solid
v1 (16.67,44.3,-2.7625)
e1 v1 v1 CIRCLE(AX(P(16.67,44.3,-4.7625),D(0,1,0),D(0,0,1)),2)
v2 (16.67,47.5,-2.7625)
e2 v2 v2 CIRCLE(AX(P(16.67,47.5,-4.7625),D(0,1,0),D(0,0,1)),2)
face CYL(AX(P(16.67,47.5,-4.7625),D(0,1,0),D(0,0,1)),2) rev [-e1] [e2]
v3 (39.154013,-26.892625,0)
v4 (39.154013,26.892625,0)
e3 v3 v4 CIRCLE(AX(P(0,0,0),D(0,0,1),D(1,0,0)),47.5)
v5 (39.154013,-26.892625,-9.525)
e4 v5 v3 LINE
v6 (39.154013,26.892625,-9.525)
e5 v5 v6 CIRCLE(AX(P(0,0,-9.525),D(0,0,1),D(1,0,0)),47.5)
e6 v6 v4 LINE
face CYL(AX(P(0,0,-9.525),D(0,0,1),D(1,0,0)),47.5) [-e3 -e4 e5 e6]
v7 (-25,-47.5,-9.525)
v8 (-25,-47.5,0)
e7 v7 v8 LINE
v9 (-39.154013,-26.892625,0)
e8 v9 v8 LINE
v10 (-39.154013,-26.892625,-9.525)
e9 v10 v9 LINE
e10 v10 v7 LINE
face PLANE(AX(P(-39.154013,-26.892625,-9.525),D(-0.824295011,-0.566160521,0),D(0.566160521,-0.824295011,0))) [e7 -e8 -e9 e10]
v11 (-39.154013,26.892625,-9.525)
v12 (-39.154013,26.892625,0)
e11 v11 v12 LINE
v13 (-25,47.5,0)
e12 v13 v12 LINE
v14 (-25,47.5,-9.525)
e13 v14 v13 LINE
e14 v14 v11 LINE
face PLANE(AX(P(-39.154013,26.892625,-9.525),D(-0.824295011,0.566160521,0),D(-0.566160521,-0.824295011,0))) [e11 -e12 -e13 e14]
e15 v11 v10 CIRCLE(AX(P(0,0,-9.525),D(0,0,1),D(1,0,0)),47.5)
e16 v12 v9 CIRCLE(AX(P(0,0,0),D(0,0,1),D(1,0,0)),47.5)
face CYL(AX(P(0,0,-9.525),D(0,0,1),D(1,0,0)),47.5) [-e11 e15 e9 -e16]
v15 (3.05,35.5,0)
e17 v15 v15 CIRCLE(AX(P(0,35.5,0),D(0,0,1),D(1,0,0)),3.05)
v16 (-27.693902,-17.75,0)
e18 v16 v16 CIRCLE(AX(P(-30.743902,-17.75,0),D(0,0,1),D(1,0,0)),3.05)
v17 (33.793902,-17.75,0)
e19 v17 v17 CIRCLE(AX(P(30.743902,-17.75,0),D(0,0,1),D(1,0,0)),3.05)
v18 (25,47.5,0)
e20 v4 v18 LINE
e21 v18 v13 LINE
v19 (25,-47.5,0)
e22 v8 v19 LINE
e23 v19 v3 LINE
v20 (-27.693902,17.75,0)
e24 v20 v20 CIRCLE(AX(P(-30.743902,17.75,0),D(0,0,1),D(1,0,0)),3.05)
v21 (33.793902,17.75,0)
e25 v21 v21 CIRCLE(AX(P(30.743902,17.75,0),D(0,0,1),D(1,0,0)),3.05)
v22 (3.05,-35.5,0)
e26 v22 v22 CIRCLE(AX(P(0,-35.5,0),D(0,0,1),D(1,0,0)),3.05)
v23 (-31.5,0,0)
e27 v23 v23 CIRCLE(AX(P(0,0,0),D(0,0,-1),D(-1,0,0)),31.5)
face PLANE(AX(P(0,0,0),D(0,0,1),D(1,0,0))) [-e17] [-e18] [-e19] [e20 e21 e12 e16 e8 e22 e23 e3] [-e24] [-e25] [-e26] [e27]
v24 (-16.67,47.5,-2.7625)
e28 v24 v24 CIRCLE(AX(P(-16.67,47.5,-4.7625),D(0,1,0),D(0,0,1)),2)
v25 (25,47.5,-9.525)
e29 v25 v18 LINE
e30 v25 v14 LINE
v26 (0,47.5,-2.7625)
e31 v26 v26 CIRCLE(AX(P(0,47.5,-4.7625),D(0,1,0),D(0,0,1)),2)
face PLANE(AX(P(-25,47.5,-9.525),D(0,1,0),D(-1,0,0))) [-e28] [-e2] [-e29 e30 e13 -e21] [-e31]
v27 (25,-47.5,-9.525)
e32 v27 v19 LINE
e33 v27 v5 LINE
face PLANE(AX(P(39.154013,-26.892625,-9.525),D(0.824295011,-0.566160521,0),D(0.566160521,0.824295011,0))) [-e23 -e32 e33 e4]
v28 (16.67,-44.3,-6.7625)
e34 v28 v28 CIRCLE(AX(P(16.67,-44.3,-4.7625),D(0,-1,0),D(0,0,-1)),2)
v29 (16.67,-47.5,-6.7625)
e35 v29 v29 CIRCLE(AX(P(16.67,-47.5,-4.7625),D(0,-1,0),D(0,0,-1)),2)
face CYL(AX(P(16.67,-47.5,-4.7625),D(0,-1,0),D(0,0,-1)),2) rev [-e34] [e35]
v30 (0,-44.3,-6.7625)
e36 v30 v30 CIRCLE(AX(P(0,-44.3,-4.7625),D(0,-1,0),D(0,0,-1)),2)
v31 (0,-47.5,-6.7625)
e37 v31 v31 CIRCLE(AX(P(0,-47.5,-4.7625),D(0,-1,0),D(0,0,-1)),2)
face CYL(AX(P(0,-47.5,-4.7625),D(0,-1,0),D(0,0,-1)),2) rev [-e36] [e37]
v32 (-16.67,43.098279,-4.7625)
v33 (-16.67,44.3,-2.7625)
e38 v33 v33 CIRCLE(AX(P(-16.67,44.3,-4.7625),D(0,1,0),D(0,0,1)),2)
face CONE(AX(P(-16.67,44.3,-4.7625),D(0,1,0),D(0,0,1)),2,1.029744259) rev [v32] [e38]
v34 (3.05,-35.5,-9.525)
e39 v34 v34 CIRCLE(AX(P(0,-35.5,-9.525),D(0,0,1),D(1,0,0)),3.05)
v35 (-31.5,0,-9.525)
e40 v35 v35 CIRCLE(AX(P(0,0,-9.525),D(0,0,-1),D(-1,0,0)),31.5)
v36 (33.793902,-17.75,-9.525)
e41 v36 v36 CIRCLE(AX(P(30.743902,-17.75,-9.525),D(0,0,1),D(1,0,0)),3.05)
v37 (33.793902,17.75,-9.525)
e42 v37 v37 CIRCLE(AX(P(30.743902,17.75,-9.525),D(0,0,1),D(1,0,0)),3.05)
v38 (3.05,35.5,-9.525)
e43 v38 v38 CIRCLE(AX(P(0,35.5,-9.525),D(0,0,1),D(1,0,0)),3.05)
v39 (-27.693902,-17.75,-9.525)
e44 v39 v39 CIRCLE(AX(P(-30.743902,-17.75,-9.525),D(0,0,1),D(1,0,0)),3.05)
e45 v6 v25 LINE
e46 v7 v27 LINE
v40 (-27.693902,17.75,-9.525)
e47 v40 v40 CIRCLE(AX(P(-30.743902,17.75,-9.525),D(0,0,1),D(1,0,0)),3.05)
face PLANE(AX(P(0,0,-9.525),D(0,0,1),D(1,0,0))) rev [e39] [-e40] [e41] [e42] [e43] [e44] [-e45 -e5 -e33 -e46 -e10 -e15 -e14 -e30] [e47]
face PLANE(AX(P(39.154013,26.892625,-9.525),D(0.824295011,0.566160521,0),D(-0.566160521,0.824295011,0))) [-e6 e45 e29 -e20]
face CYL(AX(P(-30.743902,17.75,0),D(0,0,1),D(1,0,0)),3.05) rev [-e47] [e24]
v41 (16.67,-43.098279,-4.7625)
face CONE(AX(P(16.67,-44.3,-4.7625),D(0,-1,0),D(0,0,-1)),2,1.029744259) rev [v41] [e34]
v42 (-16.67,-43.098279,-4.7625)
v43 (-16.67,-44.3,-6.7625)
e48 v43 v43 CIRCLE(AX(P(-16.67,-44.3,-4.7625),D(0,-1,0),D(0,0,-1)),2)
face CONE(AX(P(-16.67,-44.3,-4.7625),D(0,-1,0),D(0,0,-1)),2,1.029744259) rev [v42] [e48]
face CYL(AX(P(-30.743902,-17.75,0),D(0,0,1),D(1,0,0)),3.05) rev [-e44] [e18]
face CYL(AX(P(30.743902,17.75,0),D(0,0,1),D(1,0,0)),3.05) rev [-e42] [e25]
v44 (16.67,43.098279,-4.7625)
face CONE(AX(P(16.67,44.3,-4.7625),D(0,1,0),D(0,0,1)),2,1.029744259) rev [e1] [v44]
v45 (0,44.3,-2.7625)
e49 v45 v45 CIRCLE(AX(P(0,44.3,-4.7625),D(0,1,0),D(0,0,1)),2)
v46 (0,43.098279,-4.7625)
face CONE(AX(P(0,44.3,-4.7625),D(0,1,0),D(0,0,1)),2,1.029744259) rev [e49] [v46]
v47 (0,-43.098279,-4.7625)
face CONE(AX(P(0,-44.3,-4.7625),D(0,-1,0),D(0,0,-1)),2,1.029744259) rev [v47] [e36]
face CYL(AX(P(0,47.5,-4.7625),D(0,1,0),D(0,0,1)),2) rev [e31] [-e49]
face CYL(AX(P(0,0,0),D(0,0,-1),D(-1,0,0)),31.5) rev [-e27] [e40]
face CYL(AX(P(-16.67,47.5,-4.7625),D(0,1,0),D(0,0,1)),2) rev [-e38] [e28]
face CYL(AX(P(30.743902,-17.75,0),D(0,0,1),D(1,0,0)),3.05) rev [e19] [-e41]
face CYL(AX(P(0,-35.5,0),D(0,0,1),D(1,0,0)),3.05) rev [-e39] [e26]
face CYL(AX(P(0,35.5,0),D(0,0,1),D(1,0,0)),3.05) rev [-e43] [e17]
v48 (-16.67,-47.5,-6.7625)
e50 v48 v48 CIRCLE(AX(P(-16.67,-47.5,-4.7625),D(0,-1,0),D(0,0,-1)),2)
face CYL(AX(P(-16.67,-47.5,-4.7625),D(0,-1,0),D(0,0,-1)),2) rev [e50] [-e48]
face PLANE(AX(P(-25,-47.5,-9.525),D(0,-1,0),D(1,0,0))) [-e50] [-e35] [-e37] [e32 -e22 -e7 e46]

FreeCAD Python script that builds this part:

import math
import FreeCAD as App
import Part
import Sketcher

V = App.Vector
Q = App.Units.Quantity

doc = App.newDocument("Part")
params = doc.addObject("Spreadsheet::Sheet", "Params")
for row, (alias, value) in enumerate([
    ("sketch1_radius", "47.5 mm"),
    ("sketch1_width", "50 mm"),
    ("sketch1_length", "25 mm"),
    ("pad1_length", "9.525 mm"),
    ("sketch2_diameter", "6.1 mm"),
    ("hole_diameter", "6.1 mm"),
    ("sketch3_diameter", "63 mm"),
    ("sketch4_diameter", "4 mm"),
    ("hole2_diameter", "4 mm"),
    ("hole2_depth", "3.2 mm"),
    ("sketch5_diameter", "4 mm"),
    ("hole3_diameter", "4 mm"),
    ("hole3_depth", "3.2 mm"),
], start=1):
    params.set(f"A{row}", alias)
    params.set(f"B{row}", "=" + value)
    params.setAlias(f"B{row}", alias)

body = doc.addObject("PartDesign::Body", "Body")

# Sketch on XY plane
sketch1 = body.newObject("Sketcher::SketchObject", "Sketch")
sketch1.AttachmentSupport = (doc.getObject("XY_Plane"), [""])
sketch1.MapMode = "FlatFace"
sketch1.addGeometry(Part.LineSegment(V(25, 47.5, 0), V(-25, 47.5, 0)), False)
sketch1.addGeometry(Part.LineSegment(V(-25, 47.5, 0), V(-39.154013, 26.892625, 0)), False)
sketch1.addGeometry(Part.ArcOfCircle(Part.Circle(V(0, 0, 0), V(0, 0, 1), 47.5), math.radians(145.517081), math.radians(214.482919)), False)
sketch1.addGeometry(Part.LineSegment(V(-39.154013, -26.892625, 0), V(-25, -47.5, 0)), False)
sketch1.addGeometry(Part.LineSegment(V(-25, -47.5, 0), V(25, -47.5, 0)), False)
sketch1.addGeometry(Part.LineSegment(V(25, -47.5, 0), V(39.154013, -26.892625, 0)), False)
sketch1.addGeometry(Part.ArcOfCircle(Part.Circle(V(0, 0, 0), V(0, 0, 1), 47.5), math.radians(-34.482919), math.radians(34.482919)), False)
sketch1.addGeometry(Part.LineSegment(V(39.154013, 26.892625, 0), V(25, 47.5, 0)), False)
sketch1.addConstraint(Sketcher.Constraint("Coincident", 0, 2, 1, 1))
sketch1.addConstraint(Sketcher.Constraint("Tangent", 1, 2, 2, 1))
sketch1.addConstraint(Sketcher.Constraint("Tangent", 2, 2, 3, 1))
sketch1.addConstraint(Sketcher.Constraint("Coincident", 3, 2, 4, 1))
sketch1.addConstraint(Sketcher.Constraint("Coincident", 4, 2, 5, 1))
sketch1.addConstraint(Sketcher.Constraint("Tangent", 5, 2, 6, 1))
sketch1.addConstraint(Sketcher.Constraint("Tangent", 6, 2, 7, 1))
sketch1.addConstraint(Sketcher.Constraint("Coincident", 7, 2, 0, 1))
sketch1.addConstraint(Sketcher.Constraint("Horizontal", 0))
sketch1.addConstraint(Sketcher.Constraint("Horizontal", 4))
sketch1.addConstraint(Sketcher.Constraint("Coincident", 2, 3, -1, 1))
sketch1.addConstraint(Sketcher.Constraint("Coincident", 6, 3, -1, 1))
sketch1.addConstraint(Sketcher.Constraint("Equal", 2, 6))
sketch1.addConstraint(Sketcher.Constraint("Symmetric", 0, 2, 4, 2, -1, 1))
sketch1.addConstraint(Sketcher.Constraint("Parallel", 3, 7))
sketch1.addConstraint(Sketcher.Constraint("Horizontal", 2, 2, 5, 2))
sketch1.addConstraint(Sketcher.Constraint("Radius", 2, Q("47.5 mm")))
sketch1.addConstraint(Sketcher.Constraint("DistanceX", 0, 2, 0, 1, Q("50 mm")))
sketch1.addConstraint(Sketcher.Constraint("Distance", 1, Q("25 mm")))
sketch1.setExpression("Constraints[16]", "Params.sketch1_radius")
sketch1.setExpression("Constraints[17]", "Params.sketch1_width")
sketch1.setExpression("Constraints[18]", "Params.sketch1_length")
pad1 = body.newObject("PartDesign::Pad", "Pad")
pad1.Profile = sketch1
pad1.setExpression("Length", "Params.pad1_length")
pad1.Reversed = True

# Sketch on XY plane
sketch2 = body.newObject("Sketcher::SketchObject", "Sketch001")
sketch2.AttachmentSupport = (doc.getObject("XY_Plane"), [""])
sketch2.MapMode = "FlatFace"
sketch2.addGeometry(Part.Circle(V(-30.743902, 17.75, 0), V(0, 0, 1), 3.05), False)
sketch2.addGeometry(Part.Circle(V(0, 35.5, 0), V(0, 0, 1), 3.05), False)
sketch2.addGeometry(Part.Circle(V(30.743902, 17.75, 0), V(0, 0, 1), 3.05), False)
sketch2.addGeometry(Part.Circle(V(30.743902, -17.75, 0), V(0, 0, 1), 3.05), False)
sketch2.addGeometry(Part.Circle(V(0, -35.5, 0), V(0, 0, 1), 3.05), False)
sketch2.addGeometry(Part.Circle(V(-30.743902, -17.75, 0), V(0, 0, 1), 3.05), False)
sketch2.addConstraint(Sketcher.Constraint("Equal", 0, 1))
sketch2.addConstraint(Sketcher.Constraint("Equal", 1, 2))
sketch2.addConstraint(Sketcher.Constraint("Equal", 2, 3))
sketch2.addConstraint(Sketcher.Constraint("Equal", 3, 4))
sketch2.addConstraint(Sketcher.Constraint("Equal", 4, 5))
sketch2.addConstraint(Sketcher.Constraint("Symmetric", 0, 3, 3, 3, -1, 1))
sketch2.addConstraint(Sketcher.Constraint("Symmetric", 1, 3, 4, 3, -1, 1))
sketch2.addConstraint(Sketcher.Constraint("Symmetric", 2, 3, 5, 3, -1, 1))
sketch2.addConstraint(Sketcher.Constraint("Symmetric", 0, 3, 2, 3, -2))
sketch2.addConstraint(Sketcher.Constraint("PointOnObject", 1, 3, -2))
sketch2.addConstraint(Sketcher.Constraint("Diameter", 0, Q("6.1 mm")))
sketch2.addConstraint(Sketcher.Constraint("DistanceY", 4, 3, 1, 3, Q("71 mm")))
sketch2.addConstraint(Sketcher.Constraint("DistanceY", 3, 3, 2, 3, Q("35.5 mm")))
sketch2.addConstraint(Sketcher.Constraint("DistanceX", 0, 3, -1, 1, Q("30.743902 mm")))
sketch2.setExpression("Constraints[10]", "Params.sketch2_diameter")
doc.recompute()
hole = body.newObject("PartDesign::Hole", "Hole")
hole.Profile = sketch2
hole.ThreadType = "None"
hole.setExpression("Diameter", "Params.hole_diameter")
hole.DepthType = "ThroughAll"

# Sketch on XY plane
sketch3 = body.newObject("Sketcher::SketchObject", "Sketch002")
sketch3.AttachmentSupport = (doc.getObject("XY_Plane"), [""])
sketch3.MapMode = "FlatFace"
sketch3.AttachmentOffset = App.Placement(V(0, 0, -9.525), App.Rotation())
sketch3.addGeometry(Part.Circle(V(0, 0, 0), V(0, 0, 1), 31.5), False)
sketch3.addConstraint(Sketcher.Constraint("Coincident", 0, 3, -1, 1))
sketch3.addConstraint(Sketcher.Constraint("Diameter", 0, Q("63 mm")))
sketch3.setExpression("Constraints[1]", "Params.sketch3_diameter")
pocket1 = body.newObject("PartDesign::Pocket", "Pocket")
pocket1.Profile = sketch3
pocket1.Type = "ThroughAll"
pocket1.Reversed = True

# Sketch on XZ plane
sketch4 = body.newObject("Sketcher::SketchObject", "Sketch003")
sketch4.AttachmentSupport = (doc.getObject("XZ_Plane"), [""])
sketch4.MapMode = "FlatFace"
sketch4.AttachmentOffset = App.Placement(V(0, 0, -47.5), App.Rotation())
sketch4.addGeometry(Part.Circle(V(-16.67, -4.7625, 0), V(0, 0, 1), 2), False)
sketch4.addGeometry(Part.Circle(V(0, -4.7625, 0), V(0, 0, 1), 2), False)
sketch4.addGeometry(Part.Circle(V(16.67, -4.7625, 0), V(0, 0, 1), 2), False)
sketch4.addConstraint(Sketcher.Constraint("Equal", 0, 1))
sketch4.addConstraint(Sketcher.Constraint("Equal", 1, 2))
sketch4.addConstraint(Sketcher.Constraint("Symmetric", 0, 3, 2, 3, -2))
sketch4.addConstraint(Sketcher.Constraint("PointOnObject", 1, 3, -2))
sketch4.addConstraint(Sketcher.Constraint("Horizontal", 0, 3, 1, 3))
sketch4.addConstraint(Sketcher.Constraint("Diameter", 0, Q("4 mm")))
sketch4.addConstraint(Sketcher.Constraint("DistanceX", 0, 3, -1, 1, Q("16.67 mm")))
sketch4.addConstraint(Sketcher.Constraint("DistanceY", 0, 3, -1, 1, Q("4.7625 mm")))
sketch4.setExpression("Constraints[5]", "Params.sketch4_diameter")
doc.recompute()
hole2 = body.newObject("PartDesign::Hole", "Hole001")
hole2.Profile = sketch4
hole2.ThreadType = "None"
hole2.setExpression("Diameter", "Params.hole2_diameter")
hole2.DepthType = "Dimension"
hole2.setExpression("Depth", "Params.hole2_depth")
hole2.DrillPoint = "Angled"
hole2.DrillPointAngle = 118
hole2.Reversed = True

# Sketch on XZ plane
sketch5 = body.newObject("Sketcher::SketchObject", "Sketch004")
sketch5.AttachmentSupport = (doc.getObject("XZ_Plane"), [""])
sketch5.MapMode = "FlatFace"
sketch5.AttachmentOffset = App.Placement(V(0, 0, 47.5), App.Rotation())
sketch5.addGeometry(Part.Circle(V(0, -4.7625, 0), V(0, 0, 1), 2), False)
sketch5.addGeometry(Part.Circle(V(-16.67, -4.7625, 0), V(0, 0, 1), 2), False)
sketch5.addGeometry(Part.Circle(V(16.67, -4.7625, 0), V(0, 0, 1), 2), False)
sketch5.addConstraint(Sketcher.Constraint("Equal", 0, 1))
sketch5.addConstraint(Sketcher.Constraint("Equal", 1, 2))
sketch5.addConstraint(Sketcher.Constraint("Symmetric", 1, 3, 2, 3, -2))
sketch5.addConstraint(Sketcher.Constraint("PointOnObject", 0, 3, -2))
sketch5.addConstraint(Sketcher.Constraint("Horizontal", 0, 3, 1, 3))
sketch5.addConstraint(Sketcher.Constraint("Diameter", 0, Q("4 mm")))
sketch5.addConstraint(Sketcher.Constraint("DistanceX", 1, 3, -1, 1, Q("16.67 mm")))
sketch5.addConstraint(Sketcher.Constraint("DistanceY", 0, 3, -1, 1, Q("4.7625 mm")))
sketch5.setExpression("Constraints[5]", "Params.sketch5_diameter")
doc.recompute()
hole3 = body.newObject("PartDesign::Hole", "Hole002")
hole3.Profile = sketch5
hole3.ThreadType = "None"
hole3.setExpression("Diameter", "Params.hole3_diameter")
hole3.DepthType = "Dimension"
hole3.setExpression("Depth", "Params.hole3_depth")
hole3.DrillPoint = "Angled"
hole3.DrillPointAngle = 118

doc.recompute()
